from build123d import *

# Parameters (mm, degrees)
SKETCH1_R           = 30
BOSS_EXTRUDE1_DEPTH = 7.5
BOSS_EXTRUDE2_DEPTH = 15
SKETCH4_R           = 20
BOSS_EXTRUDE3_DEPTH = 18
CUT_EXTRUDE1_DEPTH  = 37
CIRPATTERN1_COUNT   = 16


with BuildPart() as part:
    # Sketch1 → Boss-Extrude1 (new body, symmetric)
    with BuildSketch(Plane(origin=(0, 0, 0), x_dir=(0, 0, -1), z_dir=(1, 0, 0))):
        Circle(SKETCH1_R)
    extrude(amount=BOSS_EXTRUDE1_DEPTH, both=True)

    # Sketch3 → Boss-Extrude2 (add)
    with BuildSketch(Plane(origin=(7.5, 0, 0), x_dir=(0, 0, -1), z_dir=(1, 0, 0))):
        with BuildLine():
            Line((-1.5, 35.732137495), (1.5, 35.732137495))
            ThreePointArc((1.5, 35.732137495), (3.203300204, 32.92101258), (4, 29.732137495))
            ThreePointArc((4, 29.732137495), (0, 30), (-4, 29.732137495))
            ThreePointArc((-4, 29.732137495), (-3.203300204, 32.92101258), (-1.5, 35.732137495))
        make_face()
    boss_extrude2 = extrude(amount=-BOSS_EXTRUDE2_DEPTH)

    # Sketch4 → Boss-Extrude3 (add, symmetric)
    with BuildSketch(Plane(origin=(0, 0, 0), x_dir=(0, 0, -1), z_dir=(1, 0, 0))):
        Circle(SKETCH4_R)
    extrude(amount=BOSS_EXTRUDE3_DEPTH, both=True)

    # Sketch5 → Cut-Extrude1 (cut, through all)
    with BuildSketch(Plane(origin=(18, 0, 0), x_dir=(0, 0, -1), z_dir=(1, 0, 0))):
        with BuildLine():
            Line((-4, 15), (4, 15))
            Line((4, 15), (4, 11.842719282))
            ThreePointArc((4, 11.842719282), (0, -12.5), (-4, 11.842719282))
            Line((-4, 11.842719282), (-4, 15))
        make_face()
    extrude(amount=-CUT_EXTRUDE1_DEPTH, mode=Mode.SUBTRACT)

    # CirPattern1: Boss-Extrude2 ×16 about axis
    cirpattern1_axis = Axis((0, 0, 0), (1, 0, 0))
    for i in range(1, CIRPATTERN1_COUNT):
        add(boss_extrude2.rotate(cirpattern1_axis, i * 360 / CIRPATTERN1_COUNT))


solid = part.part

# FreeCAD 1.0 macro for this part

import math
import FreeCAD as App
import Part
import Sketcher

V = App.Vector
Q = App.Units.Quantity

doc = App.newDocument("Part")
params = doc.addObject("Spreadsheet::Sheet", "Params")
for row, (alias, value) in enumerate([
    ("sketch1_diameter", "60 mm"),
    ("pad1_length", "15 mm"),
    ("sketch2_radius", "11 mm"),
    ("sketch2_radius2", "30 mm"),
    ("sketch2_height", "3 mm"),
    ("pad2_length", "15 mm"),
    ("sketch3_diameter", "40 mm"),
    ("pad3_length", "36 mm"),
    ("sketch4_radius", "12.5 mm"),
    ("sketch4_height", "8 mm"),
], start=1):
    params.set(f"A{row}", alias)
    params.set(f"B{row}", "=" + value)
    params.setAlias(f"B{row}", alias)

body = doc.addObject("PartDesign::Body", "Body")

# Sketch on YZ plane
sketch1 = doc.addObject("Sketcher::SketchObject", "Sketch")
body.addObject(sketch1)
sketch1.AttachmentSupport = (doc.YZ_Plane, [""])
sketch1.MapMode = "FlatFace"
sketch1.addGeometry(Part.Circle(V(0, 0, 0), V(0, 0, 1), 30), False)
sketch1.addConstraint([
    Sketcher.Constraint("Coincident", 0, 3, -1, 1),
    Sketcher.Constraint("Diameter", 0, Q("60 mm")),
])
sketch1.setExpression("Constraints[1]", "Params.sketch1_diameter")
pad1 = doc.addObject("PartDesign::Pad", "Pad")
body.addObject(pad1)
pad1.Profile = sketch1
pad1.setExpression("Length", "Params.pad1_length")
pad1.Midplane = True

# Sketch on YZ plane
sketch2 = doc.addObject("Sketcher::SketchObject", "Sketch001")
body.addObject(sketch2)
sketch2.AttachmentSupport = (doc.YZ_Plane, [""])
sketch2.MapMode = "FlatFace"
sketch2.AttachmentOffset = App.Placement(V(0, 0, 7.5), App.Rotation())
sketch2.addGeometry([
    Part.LineSegment(V(35.7, -1.5, 0), V(35.7, 1.5, 0)),
    Part.ArcOfCircle(Part.Circle(V(28.7, -7, 0), V(0, 0, 1), 11), math.radians(50), math.radians(85)),
    Part.ArcOfCircle(Part.Circle(V(0, 0, 0), V(0, 0, 1), 30), math.radians(-7.66), math.radians(7.66)),
    Part.ArcOfCircle(Part.Circle(V(28.7, 7, 0), V(0, 0, 1), 11), math.radians(-85), math.radians(-50)),
], False)
sketch2.addConstraint([
    Sketcher.Constraint("Coincident", 0, 2, 1, 1),
    Sketcher.Constraint("Coincident", 1, 2, 2, 2),
    Sketcher.Constraint("Coincident", 2, 1, 3, 1),
    Sketcher.Constraint("Coincident", 3, 2, 0, 1),
    Sketcher.Constraint("Vertical", 0),
    Sketcher.Constraint("Coincident", 2, 3, -1, 1),
    Sketcher.Constraint("Equal", 1, 3),
    Sketcher.Constraint("Symmetric", 1, 3, 3, 3, -1),
    Sketcher.Constraint("Radius", 1, Q("11 mm")),
    Sketcher.Constraint("Radius", 2, Q("30 mm")),
    Sketcher.Constraint("DistanceY", 0, 1, 0, 2, Q("3 mm")),
    Sketcher.Constraint("DistanceY", -1, 1, 1, 2, Q("4 mm")),
    Sketcher.Constraint("DistanceX", 1, 2, 0, 2, Q("6 mm")),
])
sketch2.setExpression("Constraints[8]", "Params.sketch2_radius")
sketch2.setExpression("Constraints[9]", "Params.sketch2_radius2")
sketch2.setExpression("Constraints[10]", "Params.sketch2_height")
pad2 = doc.addObject("PartDesign::Pad", "Pad001")
body.addObject(pad2)
pad2.Profile = sketch2
pad2.setExpression("Length", "Params.pad2_length")
pad2.Reversed = True

# Sketch on YZ plane
sketch3 = doc.addObject("Sketcher::SketchObject", "Sketch002")
body.addObject(sketch3)
sketch3.AttachmentSupport = (doc.YZ_Plane, [""])
sketch3.MapMode = "FlatFace"
sketch3.addGeometry(Part.Circle(V(0, 0, 0), V(0, 0, 1), 20), False)
sketch3.addConstraint([
    Sketcher.Constraint("Coincident", 0, 3, -1, 1),
    Sketcher.Constraint("Diameter", 0, Q("40 mm")),
])
sketch3.setExpression("Constraints[1]", "Params.sketch3_diameter")
pad3 = doc.addObject("PartDesign::Pad", "Pad002")
body.addObject(pad3)
pad3.Profile = sketch3
pad3.setExpression("Length", "Params.pad3_length")
pad3.Midplane = True

# Sketch on YZ plane
sketch4 = doc.addObject("Sketcher::SketchObject", "Sketch003")
body.addObject(sketch4)
sketch4.AttachmentSupport = (doc.YZ_Plane, [""])
sketch4.MapMode = "FlatFace"
sketch4.AttachmentOffset = App.Placement(V(0, 0, 18), App.Rotation())
sketch4.addGeometry([
    Part.LineSegment(V(15, -4, 0), V(15, 4, 0)),
    Part.LineSegment(V(15, 4, 0), V(11.8, 4, 0)),
    Part.ArcOfCircle(Part.Circle(V(0, 0, 0), V(0, 0, 1), 12.5), math.radians(19), math.radians(341)),
    Part.LineSegment(V(11.8, -4, 0), V(15, -4, 0)),
], False)
sketch4.addConstraint([
    Sketcher.Constraint("Coincident", 0, 2, 1, 1),
    Sketcher.Constraint("Coincident", 1, 2, 2, 1),
    Sketcher.Constraint("Coincident", 2, 2, 3, 1),
    Sketcher.Constraint("Coincident", 3, 2, 0, 1),
    Sketcher.Constraint("Vertical", 0),
    Sketcher.Constraint("Horizontal", 1),
    Sketcher.Constraint("Horizontal", 3),
    Sketcher.Constraint("Coincident", 2, 3, -1, 1),
    Sketcher.Constraint("Vertical", 1, 2, 2, 2),
    Sketcher.Constraint("Radius", 2, Q("12.5 mm")),
    Sketcher.Constraint("DistanceY", 0, 1, 0, 2, Q("8 mm")),
    Sketcher.Constraint("DistanceX", -1, 1, 0, 2, Q("15 mm")),
])
sketch4.setExpression("Constraints[9]", "Params.sketch4_radius")
sketch4.setExpression("Constraints[10]", "Params.sketch4_height")
pocket1 = doc.addObject("PartDesign::Pocket", "Pocket")
body.addObject(pocket1)
pocket1.Profile = sketch4
pocket1.Type = "ThroughAll"
doc.recompute()

polarpattern = doc.addObject("PartDesign::PolarPattern", "PolarPattern")
body.addObject(polarpattern)
polarpattern.Originals = [pad2]
polarpattern.Axis = (doc.X_Axis, [""])
polarpattern.Angle = 360
polarpattern.Occurrences = 16
body.Tip = polarpattern

doc.recompute()
